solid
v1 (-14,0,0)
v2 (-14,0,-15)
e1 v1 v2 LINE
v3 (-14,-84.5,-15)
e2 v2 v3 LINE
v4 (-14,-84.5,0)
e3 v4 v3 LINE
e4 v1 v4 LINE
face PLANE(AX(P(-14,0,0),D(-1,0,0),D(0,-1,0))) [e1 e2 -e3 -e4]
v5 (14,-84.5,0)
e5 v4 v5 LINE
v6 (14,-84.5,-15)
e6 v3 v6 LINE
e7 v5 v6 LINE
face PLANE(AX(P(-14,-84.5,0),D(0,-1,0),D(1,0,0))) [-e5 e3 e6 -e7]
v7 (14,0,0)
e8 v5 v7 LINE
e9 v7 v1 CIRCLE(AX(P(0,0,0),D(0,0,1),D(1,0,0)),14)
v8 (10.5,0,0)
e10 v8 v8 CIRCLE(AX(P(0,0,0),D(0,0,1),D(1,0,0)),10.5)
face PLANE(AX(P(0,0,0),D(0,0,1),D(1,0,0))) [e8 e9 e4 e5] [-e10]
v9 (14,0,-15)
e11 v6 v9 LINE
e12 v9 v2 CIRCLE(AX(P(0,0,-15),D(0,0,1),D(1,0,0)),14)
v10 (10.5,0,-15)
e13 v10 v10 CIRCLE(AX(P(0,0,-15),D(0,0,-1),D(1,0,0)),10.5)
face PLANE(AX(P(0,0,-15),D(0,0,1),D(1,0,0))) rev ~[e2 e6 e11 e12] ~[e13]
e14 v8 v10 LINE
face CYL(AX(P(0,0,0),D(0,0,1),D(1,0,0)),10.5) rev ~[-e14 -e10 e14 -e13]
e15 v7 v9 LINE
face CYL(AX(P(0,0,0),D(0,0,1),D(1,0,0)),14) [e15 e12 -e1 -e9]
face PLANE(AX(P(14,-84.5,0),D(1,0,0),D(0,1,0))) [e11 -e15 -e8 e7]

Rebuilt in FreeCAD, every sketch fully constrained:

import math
import FreeCAD as App
import Part
import Sketcher
from FreeCAD import Vector

doc = App.newDocument("Part")
body = doc.addObject("PartDesign::Body", "Body")

# Sketch on XY plane
sketch1 = doc.addObject("Sketcher::SketchObject", "Sketch")
body.addObject(sketch1)
sketch1.AttachmentSupport = (doc.XY_Plane, [""])
sketch1.MapMode = "FlatFace"
sketch1.addGeometry([
    Part.ArcOfCircle(Part.Circle(Vector(0, 0, 0), Vector(0, 0, 1), 14), math.radians(0), math.radians(180)),  # 0
    Part.LineSegment(Vector(-14, 0, 0), Vector(-14, -84, 0)),  # 1
    Part.LineSegment(Vector(-14, -84, 0), Vector(14, -84, 0)),  # 2
    Part.LineSegment(Vector(14, -84, 0), Vector(14, 0, 0)),  # 3
    Part.Circle(Vector(0, 0, 0), Vector(0, 0, 1), 10),  # 4
], False)
sketch1.addConstraint([
    Sketcher.Constraint("Tangent", 0, 2, 1, 1),
    Sketcher.Constraint("Coincident", 1, 2, 2, 1),
    Sketcher.Constraint("Coincident", 2, 2, 3, 1),
    Sketcher.Constraint("Tangent", 3, 2, 0, 1),
    Sketcher.Constraint("Vertical", 1),
    Sketcher.Constraint("Horizontal", 2),
    Sketcher.Constraint("Vertical", 3),
    Sketcher.Constraint("Coincident", 0, 3, -1, 1),
    Sketcher.Constraint("Coincident", 4, 3, -1, 1),
    Sketcher.Constraint("Diameter", 4, 21.0),
    Sketcher.Constraint("Radius", 0, 14.0),
    Sketcher.Constraint("DistanceY", 1, 2, 1, 1, 84.5),
])
pad1 = doc.addObject("PartDesign::Pad", "Pad")
body.addObject(pad1)
pad1.Profile = sketch1
pad1.Length = 15
pad1.Reversed = True

doc.recompute()
